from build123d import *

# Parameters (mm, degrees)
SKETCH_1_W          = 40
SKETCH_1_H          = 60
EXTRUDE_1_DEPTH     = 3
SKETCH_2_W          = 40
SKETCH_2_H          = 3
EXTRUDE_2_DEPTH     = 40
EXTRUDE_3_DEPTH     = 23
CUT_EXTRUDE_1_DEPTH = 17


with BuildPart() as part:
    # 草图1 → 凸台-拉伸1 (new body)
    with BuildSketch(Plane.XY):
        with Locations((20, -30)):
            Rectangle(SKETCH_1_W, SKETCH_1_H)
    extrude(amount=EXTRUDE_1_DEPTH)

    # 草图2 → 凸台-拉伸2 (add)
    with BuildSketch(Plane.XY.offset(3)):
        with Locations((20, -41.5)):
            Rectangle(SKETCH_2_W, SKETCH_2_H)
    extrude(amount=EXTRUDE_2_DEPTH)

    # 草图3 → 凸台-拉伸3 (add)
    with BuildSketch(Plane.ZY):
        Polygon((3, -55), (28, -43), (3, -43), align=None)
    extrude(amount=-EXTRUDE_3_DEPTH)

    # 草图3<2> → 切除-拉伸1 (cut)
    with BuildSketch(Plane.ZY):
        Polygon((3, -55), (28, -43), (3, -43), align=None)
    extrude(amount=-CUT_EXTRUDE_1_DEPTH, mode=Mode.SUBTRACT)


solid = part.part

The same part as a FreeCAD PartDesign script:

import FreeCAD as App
import Part
import Sketcher
from FreeCAD import Vector
Q = App.Units.Quantity

doc = App.newDocument("Part")
body = doc.addObject("PartDesign::Body", "Body")

sketch1 = body.newObject("Sketcher::SketchObject", "Sketch")
sketch1.AttachmentSupport = (doc.getObject("XY_Plane"), [""])
sketch1.MapMode = "FlatFace"
sketch1.addGeometry(Part.LineSegment(Vector(0, 0, 0), Vector(0, -60, 0)), False)
sketch1.addGeometry(Part.LineSegment(Vector(0, -60, 0), Vector(40, -60, 0)), False)
sketch1.addGeometry(Part.LineSegment(Vector(40, -60, 0), Vector(40, 0, 0)), False)
sketch1.addGeometry(Part.LineSegment(Vector(40, 0, 0), Vector(0, 0, 0)), False)
sketch1.addConstraint(Sketcher.Constraint("Coincident", 0, 2, 1, 1))
sketch1.addConstraint(Sketcher.Constraint("Coincident", 1, 2, 2, 1))
sketch1.addConstraint(Sketcher.Constraint("Coincident", 2, 2, 3, 1))
sketch1.addConstraint(Sketcher.Constraint("Coincident", 3, 2, 0, 1))
sketch1.addConstraint(Sketcher.Constraint("Vertical", 0))
sketch1.addConstraint(Sketcher.Constraint("Horizontal", 1))
sketch1.addConstraint(Sketcher.Constraint("Vertical", 2))
sketch1.addConstraint(Sketcher.Constraint("Horizontal", 3))
sketch1.addConstraint(Sketcher.Constraint("Coincident", 3, 2, -1, 1))
sketch1.addConstraint(Sketcher.Constraint("DistanceX", 1, 1, 1, 2, Q("40 mm")))
sketch1.addConstraint(Sketcher.Constraint("DistanceY", 0, 2, 0, 1, Q("60 mm")))
pad1 = body.newObject("PartDesign::Pad", "Pad")
pad1.Profile = sketch1
pad1.Length = 3

sketch2 = body.newObject("Sketcher::SketchObject", "Sketch001")
sketch2.AttachmentSupport = (doc.getObject("XY_Plane"), [""])
sketch2.MapMode = "FlatFace"
sketch2.AttachmentOffset = App.Placement(Vector(0, 0, 3), App.Rotation())
sketch2.addGeometry(Part.LineSegment(Vector(0, -40, 0), Vector(0, -43, 0)), False)
sketch2.addGeometry(Part.LineSegment(Vector(0, -43, 0), Vector(40, -43, 0)), False)
sketch2.addGeometry(Part.LineSegment(Vector(40, -43, 0), Vector(40, -40, 0)), False)
sketch2.addGeometry(Part.LineSegment(Vector(40, -40, 0), Vector(0, -40, 0)), False)
sketch2.addConstraint(Sketcher.Constraint("Coincident", 0, 2, 1, 1))
sketch2.addConstraint(Sketcher.Constraint("Coincident", 1, 2, 2, 1))
sketch2.addConstraint(Sketcher.Constraint("Coincident", 2, 2, 3, 1))
sketch2.addConstraint(Sketcher.Constraint("Coincident", 3, 2, 0, 1))
sketch2.addConstraint(Sketcher.Constraint("Vertical", 0))
sketch2.addConstraint(Sketcher.Constraint("Horizontal", 1))
sketch2.addConstraint(Sketcher.Constraint("Vertical", 2))
sketch2.addConstraint(Sketcher.Constraint("Horizontal", 3))
sketch2.addConstraint(Sketcher.Constraint("PointOnObject", 0, 2, -2))
sketch2.addConstraint(Sketcher.Constraint("DistanceX", 1, 1, 1, 2, Q("40 mm")))
sketch2.addConstraint(Sketcher.Constraint("DistanceY", 0, 2, 0, 1, Q("3 mm")))
sketch2.addConstraint(Sketcher.Constraint("DistanceY", 0, 2, -1, 1, Q("43 mm")))
pad2 = body.newObject("PartDesign::Pad", "Pad001")
pad2.Profile = sketch2
pad2.Length = 40

sketch3 = body.newObject("Sketcher::SketchObject", "Sketch002")
sketch3.AttachmentSupport = (doc.getObject("YZ_Plane"), [""])
sketch3.MapMode = "FlatFace"
sketch3.addGeometry(Part.LineSegment(Vector(-55, 3, 0), Vector(-43, 28, 0)), False)
sketch3.addGeometry(Part.LineSegment(Vector(-43, 28, 0), Vector(-43, 3, 0)), False)
sketch3.addGeometry(Part.LineSegment(Vector(-43, 3, 0), Vector(-55, 3, 0)), False)
sketch3.addConstraint(Sketcher.Constraint("Coincident", 0, 2, 1, 1))
sketch3.addConstraint(Sketcher.Constraint("Coincident", 1, 2, 2, 1))
sketch3.addConstraint(Sketcher.Constraint("Coincident", 2, 2, 0, 1))
sketch3.addConstraint(Sketcher.Constraint("Vertical", 1))
sketch3.addConstraint(Sketcher.Constraint("Horizontal", 2))
sketch3.addConstraint(Sketcher.Constraint("DistanceX", 2, 2, 2, 1, Q("12 mm")))
sketch3.addConstraint(Sketcher.Constraint("DistanceY", 1, 2, 1, 1, Q("25 mm")))
sketch3.addConstraint(Sketcher.Constraint("DistanceX", 0, 2, -1, 1, Q("43 mm")))
sketch3.addConstraint(Sketcher.Constraint("DistanceY", -1, 1, 0, 2, Q("28 mm")))
pad3 = body.newObject("PartDesign::Pad", "Pad002")
pad3.Profile = sketch3
pad3.Length = 23

sketch4 = body.newObject("Sketcher::SketchObject", "Sketch003")
sketch4.AttachmentSupport = (doc.getObject("YZ_Plane"), [""])
sketch4.MapMode = "FlatFace"
sketch4.addGeometry(Part.LineSegment(Vector(-55, 3, 0), Vector(-43, 28, 0)), False)
sketch4.addGeometry(Part.LineSegment(Vector(-43, 28, 0), Vector(-43, 3, 0)), False)
sketch4.addGeometry(Part.LineSegment(Vector(-43, 3, 0), Vector(-55, 3, 0)), False)
sketch4.addConstraint(Sketcher.Constraint("Coincident", 0, 2, 1, 1))
sketch4.addConstraint(Sketcher.Constraint("Coincident", 1, 2, 2, 1))
sketch4.addConstraint(Sketcher.Constraint("Coincident", 2, 2, 0, 1))
sketch4.addConstraint(Sketcher.Constraint("Vertical", 1))
sketch4.addConstraint(Sketcher.Constraint("Horizontal", 2))
sketch4.addConstraint(Sketcher.Constraint("DistanceX", 2, 2, 2, 1, Q("12 mm")))
sketch4.addConstraint(Sketcher.Constraint("DistanceY", 1, 2, 1, 1, Q("25 mm")))
sketch4.addConstraint(Sketcher.Constraint("DistanceX", 0, 2, -1, 1, Q("43 mm")))
sketch4.addConstraint(Sketcher.Constraint("DistanceY", -1, 1, 0, 2, Q("28 mm")))
pocket1 = body.newObject("PartDesign::Pocket", "Pocket")
pocket1.Profile = sketch4
pocket1.Length = 17
pocket1.Reversed = True

doc.recompute()
